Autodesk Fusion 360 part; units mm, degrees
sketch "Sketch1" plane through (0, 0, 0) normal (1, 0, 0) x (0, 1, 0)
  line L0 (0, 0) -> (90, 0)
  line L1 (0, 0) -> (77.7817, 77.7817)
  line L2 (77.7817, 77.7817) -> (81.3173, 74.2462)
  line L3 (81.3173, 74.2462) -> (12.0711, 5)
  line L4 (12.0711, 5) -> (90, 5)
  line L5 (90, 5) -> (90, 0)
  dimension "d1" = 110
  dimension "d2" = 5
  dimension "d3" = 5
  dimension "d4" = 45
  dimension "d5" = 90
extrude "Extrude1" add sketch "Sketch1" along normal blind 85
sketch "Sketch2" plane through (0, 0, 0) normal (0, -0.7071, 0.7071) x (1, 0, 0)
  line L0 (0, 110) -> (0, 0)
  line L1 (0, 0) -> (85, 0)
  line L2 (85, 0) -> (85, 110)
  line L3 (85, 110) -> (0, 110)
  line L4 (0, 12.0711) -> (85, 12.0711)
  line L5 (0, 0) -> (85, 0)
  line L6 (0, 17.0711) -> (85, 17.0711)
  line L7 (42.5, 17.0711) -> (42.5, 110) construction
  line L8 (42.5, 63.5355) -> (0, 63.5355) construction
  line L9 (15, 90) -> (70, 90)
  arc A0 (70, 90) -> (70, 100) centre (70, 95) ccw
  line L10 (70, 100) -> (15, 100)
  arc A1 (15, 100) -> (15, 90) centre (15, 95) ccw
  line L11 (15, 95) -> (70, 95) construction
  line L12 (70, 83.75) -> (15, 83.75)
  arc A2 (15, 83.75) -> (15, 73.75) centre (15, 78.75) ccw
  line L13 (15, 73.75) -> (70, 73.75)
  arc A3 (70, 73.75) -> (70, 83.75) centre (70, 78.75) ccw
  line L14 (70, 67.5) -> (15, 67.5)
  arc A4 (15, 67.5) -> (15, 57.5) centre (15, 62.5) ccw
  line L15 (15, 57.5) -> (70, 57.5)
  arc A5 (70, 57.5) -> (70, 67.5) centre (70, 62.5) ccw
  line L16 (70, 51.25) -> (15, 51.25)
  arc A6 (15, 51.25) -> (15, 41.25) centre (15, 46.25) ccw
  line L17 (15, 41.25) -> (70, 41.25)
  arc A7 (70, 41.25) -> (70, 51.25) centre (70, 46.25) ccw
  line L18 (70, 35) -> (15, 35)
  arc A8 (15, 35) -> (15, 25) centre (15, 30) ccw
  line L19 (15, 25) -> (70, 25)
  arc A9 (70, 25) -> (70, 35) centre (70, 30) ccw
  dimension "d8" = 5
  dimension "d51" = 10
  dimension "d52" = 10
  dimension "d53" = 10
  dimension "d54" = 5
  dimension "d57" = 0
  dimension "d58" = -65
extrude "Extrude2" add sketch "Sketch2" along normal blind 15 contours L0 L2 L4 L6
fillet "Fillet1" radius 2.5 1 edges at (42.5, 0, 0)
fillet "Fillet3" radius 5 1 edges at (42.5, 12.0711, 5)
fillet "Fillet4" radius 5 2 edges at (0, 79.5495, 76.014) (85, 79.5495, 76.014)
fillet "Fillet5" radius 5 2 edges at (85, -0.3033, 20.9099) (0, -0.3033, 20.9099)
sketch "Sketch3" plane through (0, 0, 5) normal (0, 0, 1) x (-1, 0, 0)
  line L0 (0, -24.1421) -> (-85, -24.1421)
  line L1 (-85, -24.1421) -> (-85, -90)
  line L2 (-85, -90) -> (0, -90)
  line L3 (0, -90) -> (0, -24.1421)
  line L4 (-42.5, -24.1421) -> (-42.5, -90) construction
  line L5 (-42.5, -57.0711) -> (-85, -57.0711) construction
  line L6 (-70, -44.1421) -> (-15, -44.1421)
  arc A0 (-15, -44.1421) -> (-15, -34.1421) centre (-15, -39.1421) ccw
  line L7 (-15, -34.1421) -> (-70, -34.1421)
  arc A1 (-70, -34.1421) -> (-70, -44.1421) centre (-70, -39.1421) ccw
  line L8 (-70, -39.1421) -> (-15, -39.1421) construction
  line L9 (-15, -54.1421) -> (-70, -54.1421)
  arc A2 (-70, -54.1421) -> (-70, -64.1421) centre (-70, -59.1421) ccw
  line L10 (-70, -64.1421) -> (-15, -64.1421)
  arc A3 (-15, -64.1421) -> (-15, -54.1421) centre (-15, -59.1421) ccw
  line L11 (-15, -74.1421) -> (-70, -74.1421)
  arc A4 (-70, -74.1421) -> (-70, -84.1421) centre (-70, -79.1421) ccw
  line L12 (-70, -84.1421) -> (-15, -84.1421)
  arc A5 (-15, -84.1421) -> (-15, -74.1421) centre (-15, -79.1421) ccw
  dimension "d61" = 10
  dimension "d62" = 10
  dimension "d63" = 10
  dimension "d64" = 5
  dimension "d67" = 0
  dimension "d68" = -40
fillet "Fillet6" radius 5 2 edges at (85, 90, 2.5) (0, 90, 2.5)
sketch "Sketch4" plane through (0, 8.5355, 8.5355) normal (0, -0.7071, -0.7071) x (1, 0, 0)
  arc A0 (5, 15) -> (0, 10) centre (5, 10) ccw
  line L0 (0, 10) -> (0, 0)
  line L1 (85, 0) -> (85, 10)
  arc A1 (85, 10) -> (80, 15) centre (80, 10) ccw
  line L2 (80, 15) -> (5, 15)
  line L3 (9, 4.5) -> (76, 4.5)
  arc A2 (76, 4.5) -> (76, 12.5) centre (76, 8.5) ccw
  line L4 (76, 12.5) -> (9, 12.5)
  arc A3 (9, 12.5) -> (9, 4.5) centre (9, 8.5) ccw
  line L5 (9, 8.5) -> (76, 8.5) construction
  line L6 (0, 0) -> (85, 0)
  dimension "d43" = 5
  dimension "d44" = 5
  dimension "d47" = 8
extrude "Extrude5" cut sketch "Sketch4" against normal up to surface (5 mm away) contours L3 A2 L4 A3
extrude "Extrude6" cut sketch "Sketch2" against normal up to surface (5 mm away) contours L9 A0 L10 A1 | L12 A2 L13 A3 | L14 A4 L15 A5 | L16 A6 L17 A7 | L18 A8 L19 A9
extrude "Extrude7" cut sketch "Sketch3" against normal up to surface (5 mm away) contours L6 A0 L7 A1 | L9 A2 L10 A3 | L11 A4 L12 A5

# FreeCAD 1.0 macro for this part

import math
import FreeCAD as App
import Part
import Sketcher
from FreeCAD import Vector
Q = App.Units.Quantity


def edges_at(feature, points):
    """Names of the edges that pass closest to the given points."""
    edges = feature.Shape.Edges
    near = lambda p: min(range(len(edges)), key=lambda i: edges[i].distToShape(Part.Vertex(*p))[0])
    return sorted({f"Edge{near(p) + 1}" for p in points})


def add_polygon(sketch, points):
    """Adds a closed chain of lines whose ends are joined by coincident constraints."""
    first, n = sketch.GeometryCount, len(points)
    for a, b in zip(points, points[1:] + points[:1]):
        sketch.addGeometry(Part.LineSegment(App.Vector(*a, 0), App.Vector(*b, 0)), False)
    for i in range(n):
        sketch.addConstraint(Sketcher.Constraint("Coincident", first + i, 2, first + (i + 1) % n, 1))

doc = App.newDocument("Part")
body = doc.addObject("PartDesign::Body", "Body")

sketch1 = body.newObject("Sketcher::SketchObject", "Sketch")
sketch1.AttachmentSupport = (doc.getObject("YZ_Plane"), [""])
sketch1.MapMode = "FlatFace"
add_polygon(sketch1, [(78, 78), (0, 0), (90, 0), (90, 5), (12, 5), (81, 74)])
sketch1.addConstraint([
    Sketcher.Constraint("Horizontal", 1),
    Sketcher.Constraint("Vertical", 2),
    Sketcher.Constraint("Horizontal", 3),
    Sketcher.Constraint("Coincident", 0, 2, -1, 1),
    Sketcher.Constraint("Parallel", 0, 4),
    Sketcher.Constraint("Perpendicular", 4, 5),
    Sketcher.Constraint("DistanceX", 1, 1, 1, 2, Q("90 mm")),
    Sketcher.Constraint("DistanceY", 2, 1, 2, 2, Q("5 mm")),
    Sketcher.Constraint("Angle", 4, Q("45 deg")),
    Sketcher.Constraint("Distance", 0, Q("110 mm")),
    Sketcher.Constraint("Distance", 5, Q("5 mm")),
])
pad1 = body.newObject("PartDesign::Pad", "Pad")
pad1.Profile = sketch1
pad1.Length = 85

sketch2 = body.newObject("Sketcher::SketchObject", "Sketch001")
sketch2.Placement = App.Placement(Vector(0, 0, 0), App.Rotation(Vector(1, 0, 0), Vector(0, 0.707106781, 0.707106781), Vector(0, -0.707106781, 0.707106781), "ZXY"))
add_polygon(sketch2, [(85, 17.1), (0, 17.1), (0, 12.1), (85, 12.1)])
sketch2.addConstraint([
    Sketcher.Constraint("Horizontal", 0),
    Sketcher.Constraint("Vertical", 1),
    Sketcher.Constraint("Horizontal", 2),
    Sketcher.Constraint("Vertical", 3),
    Sketcher.Constraint("PointOnObject", 0, 2, -2),
    Sketcher.Constraint("DistanceY", 1, 2, 1, 1, Q("5 mm")),
    Sketcher.Constraint("DistanceX", 0, 2, 0, 1, Q("85 mm")),
    Sketcher.Constraint("DistanceY", -1, 1, 0, 2, Q("17.071 mm")),
])
pad2 = body.newObject("PartDesign::Pad", "Pad001")
pad2.Profile = sketch2
pad2.Length = 15
doc.recompute()

fillet = body.newObject("PartDesign::Fillet", "Fillet")
fillet.Base = (pad2, edges_at(pad2, [(42.5, 0, 0)]))
fillet.Radius = 2.5
doc.recompute()

fillet2 = body.newObject("PartDesign::Fillet", "Fillet001")
fillet2.Base = (fillet, edges_at(fillet, [(42.5, 12.071, 5)]))
fillet2.Radius = 5
doc.recompute()

fillet3 = body.newObject("PartDesign::Fillet", "Fillet002")
fillet3.Base = (fillet2, edges_at(fillet2, [(0, 79.549, 76.014), (85, 79.549, 76.014)]))
fillet3.Radius = 5
doc.recompute()

fillet4 = body.newObject("PartDesign::Fillet", "Fillet003")
fillet4.Base = (fillet3, edges_at(fillet3, [(85, -0.303, 20.91), (0, -0.303, 20.91)]))
fillet4.Radius = 5
doc.recompute()

fillet5 = body.newObject("PartDesign::Fillet", "Fillet004")
fillet5.Base = (fillet4, edges_at(fillet4, [(85, 90, 2.5), (0, 90, 2.5)]))
fillet5.Radius = 5

sketch3 = body.newObject("Sketcher::SketchObject", "Sketch002")
sketch3.Placement = App.Placement(Vector(0, 8.5355, 8.5355), App.Rotation(Vector(1, 0, 0), Vector(0, -0.707106781, 0.707106781), Vector(0, -0.707106781, -0.707106781), "ZXY"))
sketch3.addGeometry([
    Part.ArcOfCircle(Part.Circle(Vector(9, 8.5, 0), Vector(0, 0, 1), 4), math.radians(90), math.radians(270)),
    Part.LineSegment(Vector(9, 4.5, 0), Vector(76, 4.5, 0)),
    Part.ArcOfCircle(Part.Circle(Vector(76, 8.5, 0), Vector(0, 0, 1), 4), math.radians(-90), math.radians(90)),
    Part.LineSegment(Vector(76, 12.5, 0), Vector(9, 12.5, 0)),
], False)
sketch3.addConstraint([
    Sketcher.Constraint("Tangent", 0, 2, 1, 1),
    Sketcher.Constraint("Tangent", 1, 2, 2, 1),
    Sketcher.Constraint("Tangent", 2, 2, 3, 1),
    Sketcher.Constraint("Tangent", 3, 2, 0, 1),
    Sketcher.Constraint("Horizontal", 1),
    Sketcher.Constraint("Horizontal", 3),
    Sketcher.Constraint("Radius", 0, Q("4 mm")),
    Sketcher.Constraint("DistanceX", 1, 1, 1, 2, Q("67 mm")),
    Sketcher.Constraint("DistanceX", -1, 1, 0, 3, Q("9 mm")),
    Sketcher.Constraint("DistanceY", -1, 1, 0, 3, Q("8.5 mm")),
])
pocket1 = body.newObject("PartDesign::Pocket", "Pocket")
pocket1.Profile = sketch3
pocket1.Length = 5

sketch4 = body.newObject("Sketcher::SketchObject", "Sketch003")
sketch4.Placement = App.Placement(Vector(0, 0, 0), App.Rotation(Vector(1, 0, 0), Vector(0, 0.707106781, 0.707106781), Vector(0, -0.707106781, 0.707106781), "ZXY"))
sketch4.addGeometry([
    Part.ArcOfCircle(Part.Circle(Vector(15, 95, 0), Vector(0, 0, 1), 5), math.radians(90), math.radians(270)),
    Part.LineSegment(Vector(15, 90, 0), Vector(70, 90, 0)),
    Part.ArcOfCircle(Part.Circle(Vector(70, 95, 0), Vector(0, 0, 1), 5), math.radians(-90), math.radians(90)),
    Part.LineSegment(Vector(70, 100, 0), Vector(15, 100, 0)),
    Part.ArcOfCircle(Part.Circle(Vector(70, 79, 0), Vector(0, 0, 1), 5), math.radians(-90), math.radians(90)),
    Part.LineSegment(Vector(70, 84, 0), Vector(15, 84, 0)),
    Part.ArcOfCircle(Part.Circle(Vector(15, 79, 0), Vector(0, 0, 1), 5), math.radians(90), math.radians(270)),
    Part.LineSegment(Vector(15, 74, 0), Vector(70, 74, 0)),
    Part.ArcOfCircle(Part.Circle(Vector(70, 62, 0), Vector(0, 0, 1), 5), math.radians(-90), math.radians(90)),
    Part.LineSegment(Vector(70, 67, 0), Vector(15, 67, 0)),
    Part.ArcOfCircle(Part.Circle(Vector(15, 62, 0), Vector(0, 0, 1), 5), math.radians(90), math.radians(270)),
    Part.LineSegment(Vector(15, 57, 0), Vector(70, 57, 0)),
    Part.ArcOfCircle(Part.Circle(Vector(70, 46, 0), Vector(0, 0, 1), 5), math.radians(-90), math.radians(90)),
    Part.LineSegment(Vector(70, 51, 0), Vector(15, 51, 0)),
    Part.ArcOfCircle(Part.Circle(Vector(15, 46, 0), Vector(0, 0, 1), 5), math.radians(90), math.radians(270)),
    Part.LineSegment(Vector(15, 41, 0), Vector(70, 41, 0)),
    Part.ArcOfCircle(Part.Circle(Vector(70, 30, 0), Vector(0, 0, 1), 5), math.radians(-90), math.radians(90)),
    Part.LineSegment(Vector(70, 35, 0), Vector(15, 35, 0)),
    Part.ArcOfCircle(Part.Circle(Vector(15, 30, 0), Vector(0, 0, 1), 5), math.radians(90), math.radians(270)),
    Part.LineSegment(Vector(15, 25, 0), Vector(70, 25, 0)),
], False)
sketch4.addConstraint([
    Sketcher.Constraint("Tangent", 0, 2, 1, 1),
    Sketcher.Constraint("Tangent", 1, 2, 2, 1),
    Sketcher.Constraint("Tangent", 2, 2, 3, 1),
    Sketcher.Constraint("Tangent", 3, 2, 0, 1),
    Sketcher.Constraint("Tangent", 4, 2, 5, 1),
    Sketcher.Constraint("Tangent", 5, 2, 6, 1),
    Sketcher.Constraint("Tangent", 6, 2, 7, 1),
    Sketcher.Constraint("Tangent", 7, 2, 4, 1),
    Sketcher.Constraint("Tangent", 8, 2, 9, 1),
    Sketcher.Constraint("Tangent", 9, 2, 10, 1),
    Sketcher.Constraint("Tangent", 10, 2, 11, 1),
    Sketcher.Constraint("Tangent", 11, 2, 8, 1),
    Sketcher.Constraint("Tangent", 12, 2, 13, 1),
    Sketcher.Constraint("Tangent", 13, 2, 14, 1),
    Sketcher.Constraint("Tangent", 14, 2, 15, 1),
    Sketcher.Constraint("Tangent", 15, 2, 12, 1),
    Sketcher.Constraint("Tangent", 16, 2, 17, 1),
    Sketcher.Constraint("Tangent", 17, 2, 18, 1),
    Sketcher.Constraint("Tangent", 18, 2, 19, 1),
    Sketcher.Constraint("Tangent", 19, 2, 16, 1),
    Sketcher.Constraint("Horizontal", 1),
    Sketcher.Constraint("Horizontal", 3),
    Sketcher.Constraint("Horizontal", 5),
    Sketcher.Constraint("Horizontal", 7),
    Sketcher.Constraint("Horizontal", 9),
    Sketcher.Constraint("Horizontal", 11),
    Sketcher.Constraint("Horizontal", 13),
    Sketcher.Constraint("Horizontal", 15),
    Sketcher.Constraint("Horizontal", 17),
    Sketcher.Constraint("Horizontal", 19),
    Sketcher.Constraint("Equal", 2, 4),
    Sketcher.Constraint("Equal", 6, 8),
    Sketcher.Constraint("Equal", 10, 12),
    Sketcher.Constraint("Equal", 14, 16),
    Sketcher.Constraint("Vertical", 2, 3, 4, 3),
    Sketcher.Constraint("Vertical", 0, 3, 6, 3),
    Sketcher.Constraint("Vertical", 4, 3, 8, 3),
    Sketcher.Constraint("Vertical", 6, 3, 10, 3),
    Sketcher.Constraint("Vertical", 8, 3, 12, 3),
    Sketcher.Constraint("Vertical", 10, 3, 14, 3),
    Sketcher.Constraint("Vertical", 12, 3, 16, 3),
    Sketcher.Constraint("Vertical", 14, 3, 18, 3),
    Sketcher.Constraint("Radius", 0, Q("5 mm")),
    Sketcher.Constraint("DistanceX", 1, 1, 1, 2, Q("55 mm")),
    Sketcher.Constraint("DistanceX", -1, 1, 0, 3, Q("15 mm")),
    Sketcher.Constraint("DistanceY", -1, 1, 0, 3, Q("95 mm")),
    Sketcher.Constraint("DistanceY", -1, 1, 16, 3, Q("30 mm")),
    Sketcher.Constraint("DistanceY", -1, 1, 8, 3, Q("62.5 mm")),
    Sketcher.Constraint("DistanceY", 12, 3, 4, 3, Q("32.5 mm")),
    Sketcher.Constraint("DistanceY", -1, 1, 4, 3, Q("78.75 mm")),
])
pocket2 = body.newObject("PartDesign::Pocket", "Pocket001")
pocket2.Profile = sketch4
pocket2.Length = 5

sketch5 = body.newObject("Sketcher::SketchObject", "Sketch004")
sketch5.AttachmentSupport = (doc.getObject("XY_Plane"), [""])
sketch5.MapMode = "FlatFace"
sketch5.AttachmentOffset = App.Placement(Vector(0, 0, 5), App.Rotation())
sketch5.addGeometry([
    Part.ArcOfCircle(Part.Circle(Vector(70, 39, 0), Vector(0, 0, 1), 5), math.radians(-90), math.radians(90)),
    Part.LineSegment(Vector(70, 44, 0), Vector(15, 44, 0)),
    Part.ArcOfCircle(Part.Circle(Vector(15, 39, 0), Vector(0, 0, 1), 5), math.radians(90), math.radians(270)),
    Part.LineSegment(Vector(15, 34, 0), Vector(70, 34, 0)),
    Part.ArcOfCircle(Part.Circle(Vector(15, 59, 0), Vector(0, 0, 1), 5), math.radians(90), math.radians(270)),
    Part.LineSegment(Vector(15, 54, 0), Vector(70, 54, 0)),
    Part.ArcOfCircle(Part.Circle(Vector(70, 59, 0), Vector(0, 0, 1), 5), math.radians(-90), math.radians(90)),
    Part.LineSegment(Vector(70, 64, 0), Vector(15, 64, 0)),
    Part.ArcOfCircle(Part.Circle(Vector(15, 79, 0), Vector(0, 0, 1), 5), math.radians(90), math.radians(270)),
    Part.LineSegment(Vector(15, 74, 0), Vector(70, 74, 0)),
    Part.ArcOfCircle(Part.Circle(Vector(70, 79, 0), Vector(0, 0, 1), 5), math.radians(-90), math.radians(90)),
    Part.LineSegment(Vector(70, 84, 0), Vector(15, 84, 0)),
], False)
sketch5.addConstraint([
    Sketcher.Constraint("Tangent", 0, 2, 1, 1),
    Sketcher.Constraint("Tangent", 1, 2, 2, 1),
    Sketcher.Constraint("Tangent", 2, 2, 3, 1),
    Sketcher.Constraint("Tangent", 3, 2, 0, 1),
    Sketcher.Constraint("Tangent", 4, 2, 5, 1),
    Sketcher.Constraint("Tangent", 5, 2, 6, 1),
    Sketcher.Constraint("Tangent", 6, 2, 7, 1),
    Sketcher.Constraint("Tangent", 7, 2, 4, 1),
    Sketcher.Constraint("Tangent", 8, 2, 9, 1),
    Sketcher.Constraint("Tangent", 9, 2, 10, 1),
    Sketcher.Constraint("Tangent", 10, 2, 11, 1),
    Sketcher.Constraint("Tangent", 11, 2, 8, 1),
    Sketcher.Constraint("Horizontal", 1),
    Sketcher.Constraint("Horizontal", 3),
    Sketcher.Constraint("Horizontal", 5),
    Sketcher.Constraint("Horizontal", 7),
    Sketcher.Constraint("Horizontal", 9),
    Sketcher.Constraint("Horizontal", 11),
    Sketcher.Constraint("Equal", 2, 4),
    Sketcher.Constraint("Equal", 6, 8),
    Sketcher.Constraint("Vertical", 2, 3, 4, 3),
    Sketcher.Constraint("Vertical", 0, 3, 6, 3),
    Sketcher.Constraint("Vertical", 4, 3, 8, 3),
    Sketcher.Constraint("Vertical", 6, 3, 10, 3),
    Sketcher.Constraint("Radius", 0, Q("5 mm")),
    Sketcher.Constraint("DistanceY", 2, 3, 8, 3, Q("40 mm")),
    Sketcher.Constraint("DistanceY", 1, 2, 4, 2, Q("10 mm")),
    Sketcher.Constraint("DistanceX", 1, 2, 1, 1, Q("55 mm")),
    Sketcher.Constraint("DistanceX", -1, 1, 0, 3, Q("70 mm")),
    Sketcher.Constraint("DistanceY", -1, 1, 0, 3, Q("39.142 mm")),
])
pocket3 = body.newObject("PartDesign::Pocket", "Pocket002")
pocket3.Profile = sketch5
pocket3.Length = 5

doc.recompute()
